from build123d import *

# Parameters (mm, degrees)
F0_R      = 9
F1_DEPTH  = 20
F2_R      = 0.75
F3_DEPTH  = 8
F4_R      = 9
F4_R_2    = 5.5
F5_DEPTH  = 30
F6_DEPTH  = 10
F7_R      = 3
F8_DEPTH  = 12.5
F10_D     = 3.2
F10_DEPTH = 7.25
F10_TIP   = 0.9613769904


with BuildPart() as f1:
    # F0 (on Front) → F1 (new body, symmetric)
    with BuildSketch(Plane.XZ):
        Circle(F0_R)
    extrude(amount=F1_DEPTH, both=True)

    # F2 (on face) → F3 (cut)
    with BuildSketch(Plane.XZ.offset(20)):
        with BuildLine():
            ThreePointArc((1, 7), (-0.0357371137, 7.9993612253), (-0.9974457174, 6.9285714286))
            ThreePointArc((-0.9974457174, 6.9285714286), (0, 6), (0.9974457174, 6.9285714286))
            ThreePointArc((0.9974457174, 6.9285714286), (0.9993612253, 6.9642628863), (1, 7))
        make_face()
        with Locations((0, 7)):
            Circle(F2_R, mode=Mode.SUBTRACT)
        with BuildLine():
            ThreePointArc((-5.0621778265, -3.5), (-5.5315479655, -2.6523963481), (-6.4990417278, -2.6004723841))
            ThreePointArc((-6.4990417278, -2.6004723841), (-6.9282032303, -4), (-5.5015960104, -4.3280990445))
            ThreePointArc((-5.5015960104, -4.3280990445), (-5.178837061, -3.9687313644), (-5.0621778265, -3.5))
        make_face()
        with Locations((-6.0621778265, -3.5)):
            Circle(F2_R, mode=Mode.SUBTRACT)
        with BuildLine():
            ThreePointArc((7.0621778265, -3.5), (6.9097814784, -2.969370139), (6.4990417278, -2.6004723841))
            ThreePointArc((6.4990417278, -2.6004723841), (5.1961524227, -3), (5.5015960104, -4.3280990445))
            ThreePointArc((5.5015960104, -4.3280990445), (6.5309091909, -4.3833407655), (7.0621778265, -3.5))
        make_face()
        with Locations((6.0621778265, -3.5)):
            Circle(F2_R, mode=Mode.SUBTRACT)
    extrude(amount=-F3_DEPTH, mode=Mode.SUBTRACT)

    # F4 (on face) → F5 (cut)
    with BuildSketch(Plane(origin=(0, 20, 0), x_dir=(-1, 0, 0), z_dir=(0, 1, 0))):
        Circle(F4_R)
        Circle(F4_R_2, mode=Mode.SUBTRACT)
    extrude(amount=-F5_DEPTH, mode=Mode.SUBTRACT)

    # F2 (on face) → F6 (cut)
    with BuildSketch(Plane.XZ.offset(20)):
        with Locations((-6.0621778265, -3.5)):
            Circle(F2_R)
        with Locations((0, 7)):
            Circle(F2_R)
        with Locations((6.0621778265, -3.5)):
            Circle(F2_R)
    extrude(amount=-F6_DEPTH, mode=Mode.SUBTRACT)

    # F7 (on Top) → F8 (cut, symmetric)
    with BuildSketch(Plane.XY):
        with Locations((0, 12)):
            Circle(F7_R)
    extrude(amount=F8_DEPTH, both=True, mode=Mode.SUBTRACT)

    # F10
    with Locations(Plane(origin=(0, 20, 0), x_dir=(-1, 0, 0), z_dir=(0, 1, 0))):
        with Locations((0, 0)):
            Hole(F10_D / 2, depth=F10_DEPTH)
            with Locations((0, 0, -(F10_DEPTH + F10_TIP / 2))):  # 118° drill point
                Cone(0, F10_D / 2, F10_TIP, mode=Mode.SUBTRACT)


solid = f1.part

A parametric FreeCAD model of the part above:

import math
import FreeCAD as App
import Part
import Sketcher
from FreeCAD import Vector

doc = App.newDocument("Part")
body = doc.addObject("PartDesign::Body", "Body")

# Sketch on XZ plane
sketch1 = doc.addObject("Sketcher::SketchObject", "Sketch")
body.addObject(sketch1)
sketch1.AttachmentSupport = (doc.XZ_Plane, [""])
sketch1.MapMode = "FlatFace"
sketch1.addGeometry(Part.Circle(Vector(0, 0, 0), Vector(0, 0, 1), 9), False)
sketch1.addConstraint(Sketcher.Constraint("Coincident", 0, 3, -1, 1))
sketch1.addConstraint(Sketcher.Constraint("Diameter", 0, 18.0))
pad1 = doc.addObject("PartDesign::Pad", "Pad")
body.addObject(pad1)
pad1.Profile = sketch1
pad1.Length = 40
pad1.Midplane = True

# Sketch on XZ plane
sketch2 = doc.addObject("Sketcher::SketchObject", "Sketch001")
body.addObject(sketch2)
sketch2.AttachmentSupport = (doc.XZ_Plane, [""])
sketch2.MapMode = "FlatFace"
sketch2.AttachmentOffset = App.Placement(Vector(0, 0, 20), App.Rotation())
sketch2.addGeometry(Part.ArcOfCircle(Part.Circle(Vector(0, 7, 0), Vector(0, 0, 1), 1), math.radians(0), math.radians(184.096044)), False)
sketch2.addGeometry(Part.ArcOfCircle(Part.Circle(Vector(0, 7, 0), Vector(0, 0, 1), 1), math.radians(-175.903956), math.radians(-4.096044)), False)
sketch2.addGeometry(Part.ArcOfCircle(Part.Circle(Vector(0, 7, 0), Vector(0, 0, 1), 1), math.radians(-4.096044), math.radians(0)), False)
sketch2.addGeometry(Part.Circle(Vector(0, 7, 0), Vector(0, 0, 1), 0.75), False)
sketch2.addGeometry(Part.ArcOfCircle(Part.Circle(Vector(-6.062178, -3.5, 0), Vector(0, 0, 1), 1), math.radians(0), math.radians(115.903956)), False)
sketch2.addGeometry(Part.ArcOfCircle(Part.Circle(Vector(-6.062178, -3.5, 0), Vector(0, 0, 1), 1), math.radians(115.903956), math.radians(304.096044)), False)
sketch2.addGeometry(Part.ArcOfCircle(Part.Circle(Vector(-6.062178, -3.5, 0), Vector(0, 0, 1), 1), math.radians(-55.903956), math.radians(0)), False)
sketch2.addGeometry(Part.Circle(Vector(-6.062178, -3.5, 0), Vector(0, 0, 1), 0.75), False)
sketch2.addGeometry(Part.ArcOfCircle(Part.Circle(Vector(6.062178, -3.5, 0), Vector(0, 0, 1), 1), math.radians(0), math.radians(64.096044)), False)
sketch2.addGeometry(Part.ArcOfCircle(Part.Circle(Vector(6.062178, -3.5, 0), Vector(0, 0, 1), 1), math.radians(64.096044), math.radians(235.903956)), False)
sketch2.addGeometry(Part.ArcOfCircle(Part.Circle(Vector(6.062178, -3.5, 0), Vector(0, 0, 1), 1), math.radians(-124.096044), math.radians(0)), False)
sketch2.addGeometry(Part.Circle(Vector(6.062178, -3.5, 0), Vector(0, 0, 1), 0.75), False)
sketch2.addConstraint(Sketcher.Constraint("Tangent", 0, 2, 1, 1))
sketch2.addConstraint(Sketcher.Constraint("Tangent", 1, 2, 2, 1))
sketch2.addConstraint(Sketcher.Constraint("Tangent", 2, 2, 0, 1))
sketch2.addConstraint(Sketcher.Constraint("Tangent", 4, 2, 5, 1))
sketch2.addConstraint(Sketcher.Constraint("Tangent", 5, 2, 6, 1))
sketch2.addConstraint(Sketcher.Constraint("Tangent", 6, 2, 4, 1))
sketch2.addConstraint(Sketcher.Constraint("Tangent", 8, 2, 9, 1))
sketch2.addConstraint(Sketcher.Constraint("Tangent", 9, 2, 10, 1))
sketch2.addConstraint(Sketcher.Constraint("Tangent", 10, 2, 8, 1))
sketch2.addConstraint(Sketcher.Constraint("Coincident", 3, 3, 0, 3))
sketch2.addConstraint(Sketcher.Constraint("Coincident", 7, 3, 4, 3))
sketch2.addConstraint(Sketcher.Constraint("Coincident", 11, 3, 8, 3))
sketch2.addConstraint(Sketcher.Constraint("Equal", 2, 4))
sketch2.addConstraint(Sketcher.Constraint("Equal", 3, 7))
sketch2.addConstraint(Sketcher.Constraint("Equal", 6, 8))
sketch2.addConstraint(Sketcher.Constraint("Equal", 7, 11))
sketch2.addConstraint(Sketcher.Constraint("Symmetric", 4, 3, 8, 3, -2))
sketch2.addConstraint(Sketcher.Constraint("Symmetric", 0, 2, 1, 2, -2))
sketch2.addConstraint(Sketcher.Constraint("Horizontal", 3, 3, 2, 2))
sketch2.addConstraint(Sketcher.Constraint("Horizontal", 11, 3, 6, 2))
sketch2.addConstraint(Sketcher.Constraint("Horizontal", 4, 2, 8, 2))
sketch2.addConstraint(Sketcher.Constraint("Horizontal", 5, 2, 9, 2))
sketch2.addConstraint(Sketcher.Constraint("Horizontal", 6, 2, 10, 2))
sketch2.addConstraint(Sketcher.Constraint("Radius", 0, 1.0))
sketch2.addConstraint(Sketcher.Constraint("Diameter", 3, 1.5))
sketch2.addConstraint(Sketcher.Constraint("DistanceY", -1, 1, 0, 3, 7.0))
sketch2.addConstraint(Sketcher.Constraint("DistanceY", 4, 3, -1, 1, 3.5))
sketch2.addConstraint(Sketcher.Constraint("DistanceY", 5, 2, -1, 1, 4.328099))
sketch2.addConstraint(Sketcher.Constraint("DistanceY", -1, 1, 0, 2, 6.928571))
sketch2.addConstraint(Sketcher.Constraint("DistanceX", 4, 2, -1, 1, 6.499042))
sketch2.addConstraint(Sketcher.Constraint("DistanceX", 4, 3, -1, 1, 6.062178))
pocket1 = doc.addObject("PartDesign::Pocket", "Pocket")
body.addObject(pocket1)
pocket1.Profile = sketch2
pocket1.Length = 8

# Sketch on XZ plane
sketch3 = doc.addObject("Sketcher::SketchObject", "Sketch002")
body.addObject(sketch3)
sketch3.AttachmentSupport = (doc.XZ_Plane, [""])
sketch3.MapMode = "FlatFace"
sketch3.AttachmentOffset = App.Placement(Vector(0, 0, -20), App.Rotation())
sketch3.addGeometry(Part.Circle(Vector(0, 0, 0), Vector(0, 0, 1), 9), False)
sketch3.addGeometry(Part.Circle(Vector(0, 0, 0), Vector(0, 0, 1), 5.5), False)
sketch3.addConstraint(Sketcher.Constraint("Coincident", 0, 3, -1, 1))
sketch3.addConstraint(Sketcher.Constraint("Coincident", 1, 3, -1, 1))
sketch3.addConstraint(Sketcher.Constraint("Diameter", 0, 18.0))
sketch3.addConstraint(Sketcher.Constraint("Diameter", 1, 11.0))
pocket2 = doc.addObject("PartDesign::Pocket", "Pocket001")
body.addObject(pocket2)
pocket2.Profile = sketch3
pocket2.Length = 30
pocket2.Reversed = True

# Sketch on XZ plane
sketch4 = doc.addObject("Sketcher::SketchObject", "Sketch003")
body.addObject(sketch4)
sketch4.AttachmentSupport = (doc.XZ_Plane, [""])
sketch4.MapMode = "FlatFace"
sketch4.AttachmentOffset = App.Placement(Vector(0, 0, 20), App.Rotation())
sketch4.addGeometry(Part.Circle(Vector(-6.062178, -3.5, 0), Vector(0, 0, 1), 0.75), False)
sketch4.addGeometry(Part.Circle(Vector(0, 7, 0), Vector(0, 0, 1), 0.75), False)
sketch4.addGeometry(Part.Circle(Vector(6.062178, -3.5, 0), Vector(0, 0, 1), 0.75), False)
sketch4.addConstraint(Sketcher.Constraint("Equal", 0, 1))
sketch4.addConstraint(Sketcher.Constraint("Equal", 1, 2))
sketch4.addConstraint(Sketcher.Constraint("Symmetric", 0, 3, 2, 3, -2))
sketch4.addConstraint(Sketcher.Constraint("PointOnObject", 1, 3, -2))
sketch4.addConstraint(Sketcher.Constraint("Diameter", 0, 1.5))
sketch4.addConstraint(Sketcher.Constraint("DistanceY", -1, 1, 1, 3, 7.0))
sketch4.addConstraint(Sketcher.Constraint("DistanceY", 0, 3, -1, 1, 3.5))
sketch4.addConstraint(Sketcher.Constraint("DistanceX", 0, 3, -1, 1, 6.062178))
pocket3 = doc.addObject("PartDesign::Pocket", "Pocket002")
body.addObject(pocket3)
pocket3.Profile = sketch4
pocket3.Length = 10

# Sketch on XY plane
sketch5 = doc.addObject("Sketcher::SketchObject", "Sketch004")
body.addObject(sketch5)
sketch5.AttachmentSupport = (doc.XY_Plane, [""])
sketch5.MapMode = "FlatFace"
sketch5.addGeometry(Part.Circle(Vector(0, 12, 0), Vector(0, 0, 1), 3), False)
sketch5.addConstraint(Sketcher.Constraint("PointOnObject", 0, 3, -2))
sketch5.addConstraint(Sketcher.Constraint("Diameter", 0, 6.0))
sketch5.addConstraint(Sketcher.Constraint("DistanceY", -1, 1, 0, 3, 12.0))
pocket4 = doc.addObject("PartDesign::Pocket", "Pocket003")
body.addObject(pocket4)
pocket4.Profile = sketch5
pocket4.Length = 25
pocket4.Midplane = True

# Sketch on XZ plane
sketch6 = doc.addObject("Sketcher::SketchObject", "Sketch005")
body.addObject(sketch6)
sketch6.AttachmentSupport = (doc.XZ_Plane, [""])
sketch6.MapMode = "FlatFace"
sketch6.AttachmentOffset = App.Placement(Vector(0, 0, -20), App.Rotation())
sketch6.addGeometry(Part.Circle(Vector(0, 0, 0), Vector(0, 0, 1), 1.6), False)
sketch6.addConstraint(Sketcher.Constraint("Coincident", 0, 3, -1, 1))
sketch6.addConstraint(Sketcher.Constraint("Diameter", 0, 3.2))
doc.recompute()
hole = doc.addObject("PartDesign::Hole", "Hole")
body.addObject(hole)
hole.Profile = sketch6
hole.ThreadType = "None"
hole.Diameter = 3.2
hole.DepthType = "Dimension"
hole.Depth = 7.25
hole.DrillPoint = "Angled"
hole.DrillPointAngle = 118
hole.Reversed = True

doc.recompute()
